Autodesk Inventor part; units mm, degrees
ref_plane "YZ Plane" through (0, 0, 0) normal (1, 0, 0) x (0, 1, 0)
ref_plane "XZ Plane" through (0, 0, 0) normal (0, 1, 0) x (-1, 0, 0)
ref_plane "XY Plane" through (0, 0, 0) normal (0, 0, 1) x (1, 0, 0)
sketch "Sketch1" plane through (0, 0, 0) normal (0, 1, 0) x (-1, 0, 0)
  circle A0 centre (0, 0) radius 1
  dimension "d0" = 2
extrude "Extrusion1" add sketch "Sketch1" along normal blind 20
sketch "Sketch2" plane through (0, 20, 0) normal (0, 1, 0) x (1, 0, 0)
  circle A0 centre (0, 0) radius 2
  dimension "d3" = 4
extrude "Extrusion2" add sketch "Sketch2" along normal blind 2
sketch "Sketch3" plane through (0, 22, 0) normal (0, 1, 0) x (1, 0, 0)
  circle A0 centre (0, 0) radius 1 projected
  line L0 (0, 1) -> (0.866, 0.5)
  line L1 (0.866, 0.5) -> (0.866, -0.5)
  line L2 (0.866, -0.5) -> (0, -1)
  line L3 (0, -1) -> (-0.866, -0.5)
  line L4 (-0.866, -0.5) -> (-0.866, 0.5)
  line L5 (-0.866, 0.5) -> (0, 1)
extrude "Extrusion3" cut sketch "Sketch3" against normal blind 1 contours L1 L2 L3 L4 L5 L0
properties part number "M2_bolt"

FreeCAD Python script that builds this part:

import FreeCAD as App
import Part
import Sketcher
from FreeCAD import Vector
Q = App.Units.Quantity


def add_polygon(sketch, points):
    """Adds a closed chain of lines whose ends are joined by coincident constraints."""
    first, n = sketch.GeometryCount, len(points)
    for a, b in zip(points, points[1:] + points[:1]):
        sketch.addGeometry(Part.LineSegment(App.Vector(*a, 0), App.Vector(*b, 0)), False)
    for i in range(n):
        sketch.addConstraint(Sketcher.Constraint("Coincident", first + i, 2, first + (i + 1) % n, 1))

doc = App.newDocument("Part")
body = doc.addObject("PartDesign::Body", "Body")

# Sketch on XZ plane
sketch1 = body.newObject("Sketcher::SketchObject", "Sketch")
sketch1.AttachmentSupport = (doc.getObject("XZ_Plane"), [""])
sketch1.MapMode = "FlatFace"
sketch1.addGeometry(Part.Circle(Vector(0, 0, 0), Vector(0, 0, 1), 1), False)
sketch1.addConstraint([
    Sketcher.Constraint("Coincident", 0, 3, -1, 1),
    Sketcher.Constraint("Diameter", 0, Q("2 mm")),
])
pad1 = body.newObject("PartDesign::Pad", "Pad")
pad1.Profile = sketch1
pad1.Length = 20
pad1.Reversed = True

# Sketch on XZ plane
sketch2 = body.newObject("Sketcher::SketchObject", "Sketch001")
sketch2.AttachmentSupport = (doc.getObject("XZ_Plane"), [""])
sketch2.MapMode = "FlatFace"
sketch2.AttachmentOffset = App.Placement(Vector(0, 0, -20), App.Rotation())
sketch2.addGeometry(Part.Circle(Vector(0, 0, 0), Vector(0, 0, 1), 2), False)
sketch2.addConstraint([
    Sketcher.Constraint("Coincident", 0, 3, -1, 1),
    Sketcher.Constraint("Diameter", 0, Q("4 mm")),
])
pad2 = body.newObject("PartDesign::Pad", "Pad001")
pad2.Profile = sketch2
pad2.Length = 2
pad2.Reversed = True

# Sketch on XZ plane
sketch3 = body.newObject("Sketcher::SketchObject", "Sketch002")
sketch3.AttachmentSupport = (doc.getObject("XZ_Plane"), [""])
sketch3.MapMode = "FlatFace"
sketch3.AttachmentOffset = App.Placement(Vector(0, 0, -22), App.Rotation())
add_polygon(sketch3, [(0.866, 0.5), (0.866, -0.5), (0, -1), (-0.866, -0.5), (-0.866, 0.5), (0, 1)])  # lines 0-5
sketch3.addConstraint([
    Sketcher.Constraint("Vertical", 0),
    Sketcher.Constraint("Vertical", 3),
    Sketcher.Constraint("Symmetric", 0, 2, 3, 2, -1, 1),
    Sketcher.Constraint("Symmetric", 1, 2, 4, 2, -1, 1),
    Sketcher.Constraint("PointOnObject", 1, 2, -2),
    Sketcher.Constraint("Parallel", 2, 5),
    Sketcher.Constraint("Horizontal", 0, 2, 2, 2),
    Sketcher.Constraint("DistanceY", 0, 2, 0, 1, Q("1 mm")),
    Sketcher.Constraint("Angle", 1, Q("-149.9993 deg")),
    Sketcher.Constraint("Distance", 1, Q("1 mm")),
])
pocket1 = body.newObject("PartDesign::Pocket", "Pocket")
pocket1.Profile = sketch3
pocket1.Length = 1
pocket1.Reversed = True

doc.recompute()
